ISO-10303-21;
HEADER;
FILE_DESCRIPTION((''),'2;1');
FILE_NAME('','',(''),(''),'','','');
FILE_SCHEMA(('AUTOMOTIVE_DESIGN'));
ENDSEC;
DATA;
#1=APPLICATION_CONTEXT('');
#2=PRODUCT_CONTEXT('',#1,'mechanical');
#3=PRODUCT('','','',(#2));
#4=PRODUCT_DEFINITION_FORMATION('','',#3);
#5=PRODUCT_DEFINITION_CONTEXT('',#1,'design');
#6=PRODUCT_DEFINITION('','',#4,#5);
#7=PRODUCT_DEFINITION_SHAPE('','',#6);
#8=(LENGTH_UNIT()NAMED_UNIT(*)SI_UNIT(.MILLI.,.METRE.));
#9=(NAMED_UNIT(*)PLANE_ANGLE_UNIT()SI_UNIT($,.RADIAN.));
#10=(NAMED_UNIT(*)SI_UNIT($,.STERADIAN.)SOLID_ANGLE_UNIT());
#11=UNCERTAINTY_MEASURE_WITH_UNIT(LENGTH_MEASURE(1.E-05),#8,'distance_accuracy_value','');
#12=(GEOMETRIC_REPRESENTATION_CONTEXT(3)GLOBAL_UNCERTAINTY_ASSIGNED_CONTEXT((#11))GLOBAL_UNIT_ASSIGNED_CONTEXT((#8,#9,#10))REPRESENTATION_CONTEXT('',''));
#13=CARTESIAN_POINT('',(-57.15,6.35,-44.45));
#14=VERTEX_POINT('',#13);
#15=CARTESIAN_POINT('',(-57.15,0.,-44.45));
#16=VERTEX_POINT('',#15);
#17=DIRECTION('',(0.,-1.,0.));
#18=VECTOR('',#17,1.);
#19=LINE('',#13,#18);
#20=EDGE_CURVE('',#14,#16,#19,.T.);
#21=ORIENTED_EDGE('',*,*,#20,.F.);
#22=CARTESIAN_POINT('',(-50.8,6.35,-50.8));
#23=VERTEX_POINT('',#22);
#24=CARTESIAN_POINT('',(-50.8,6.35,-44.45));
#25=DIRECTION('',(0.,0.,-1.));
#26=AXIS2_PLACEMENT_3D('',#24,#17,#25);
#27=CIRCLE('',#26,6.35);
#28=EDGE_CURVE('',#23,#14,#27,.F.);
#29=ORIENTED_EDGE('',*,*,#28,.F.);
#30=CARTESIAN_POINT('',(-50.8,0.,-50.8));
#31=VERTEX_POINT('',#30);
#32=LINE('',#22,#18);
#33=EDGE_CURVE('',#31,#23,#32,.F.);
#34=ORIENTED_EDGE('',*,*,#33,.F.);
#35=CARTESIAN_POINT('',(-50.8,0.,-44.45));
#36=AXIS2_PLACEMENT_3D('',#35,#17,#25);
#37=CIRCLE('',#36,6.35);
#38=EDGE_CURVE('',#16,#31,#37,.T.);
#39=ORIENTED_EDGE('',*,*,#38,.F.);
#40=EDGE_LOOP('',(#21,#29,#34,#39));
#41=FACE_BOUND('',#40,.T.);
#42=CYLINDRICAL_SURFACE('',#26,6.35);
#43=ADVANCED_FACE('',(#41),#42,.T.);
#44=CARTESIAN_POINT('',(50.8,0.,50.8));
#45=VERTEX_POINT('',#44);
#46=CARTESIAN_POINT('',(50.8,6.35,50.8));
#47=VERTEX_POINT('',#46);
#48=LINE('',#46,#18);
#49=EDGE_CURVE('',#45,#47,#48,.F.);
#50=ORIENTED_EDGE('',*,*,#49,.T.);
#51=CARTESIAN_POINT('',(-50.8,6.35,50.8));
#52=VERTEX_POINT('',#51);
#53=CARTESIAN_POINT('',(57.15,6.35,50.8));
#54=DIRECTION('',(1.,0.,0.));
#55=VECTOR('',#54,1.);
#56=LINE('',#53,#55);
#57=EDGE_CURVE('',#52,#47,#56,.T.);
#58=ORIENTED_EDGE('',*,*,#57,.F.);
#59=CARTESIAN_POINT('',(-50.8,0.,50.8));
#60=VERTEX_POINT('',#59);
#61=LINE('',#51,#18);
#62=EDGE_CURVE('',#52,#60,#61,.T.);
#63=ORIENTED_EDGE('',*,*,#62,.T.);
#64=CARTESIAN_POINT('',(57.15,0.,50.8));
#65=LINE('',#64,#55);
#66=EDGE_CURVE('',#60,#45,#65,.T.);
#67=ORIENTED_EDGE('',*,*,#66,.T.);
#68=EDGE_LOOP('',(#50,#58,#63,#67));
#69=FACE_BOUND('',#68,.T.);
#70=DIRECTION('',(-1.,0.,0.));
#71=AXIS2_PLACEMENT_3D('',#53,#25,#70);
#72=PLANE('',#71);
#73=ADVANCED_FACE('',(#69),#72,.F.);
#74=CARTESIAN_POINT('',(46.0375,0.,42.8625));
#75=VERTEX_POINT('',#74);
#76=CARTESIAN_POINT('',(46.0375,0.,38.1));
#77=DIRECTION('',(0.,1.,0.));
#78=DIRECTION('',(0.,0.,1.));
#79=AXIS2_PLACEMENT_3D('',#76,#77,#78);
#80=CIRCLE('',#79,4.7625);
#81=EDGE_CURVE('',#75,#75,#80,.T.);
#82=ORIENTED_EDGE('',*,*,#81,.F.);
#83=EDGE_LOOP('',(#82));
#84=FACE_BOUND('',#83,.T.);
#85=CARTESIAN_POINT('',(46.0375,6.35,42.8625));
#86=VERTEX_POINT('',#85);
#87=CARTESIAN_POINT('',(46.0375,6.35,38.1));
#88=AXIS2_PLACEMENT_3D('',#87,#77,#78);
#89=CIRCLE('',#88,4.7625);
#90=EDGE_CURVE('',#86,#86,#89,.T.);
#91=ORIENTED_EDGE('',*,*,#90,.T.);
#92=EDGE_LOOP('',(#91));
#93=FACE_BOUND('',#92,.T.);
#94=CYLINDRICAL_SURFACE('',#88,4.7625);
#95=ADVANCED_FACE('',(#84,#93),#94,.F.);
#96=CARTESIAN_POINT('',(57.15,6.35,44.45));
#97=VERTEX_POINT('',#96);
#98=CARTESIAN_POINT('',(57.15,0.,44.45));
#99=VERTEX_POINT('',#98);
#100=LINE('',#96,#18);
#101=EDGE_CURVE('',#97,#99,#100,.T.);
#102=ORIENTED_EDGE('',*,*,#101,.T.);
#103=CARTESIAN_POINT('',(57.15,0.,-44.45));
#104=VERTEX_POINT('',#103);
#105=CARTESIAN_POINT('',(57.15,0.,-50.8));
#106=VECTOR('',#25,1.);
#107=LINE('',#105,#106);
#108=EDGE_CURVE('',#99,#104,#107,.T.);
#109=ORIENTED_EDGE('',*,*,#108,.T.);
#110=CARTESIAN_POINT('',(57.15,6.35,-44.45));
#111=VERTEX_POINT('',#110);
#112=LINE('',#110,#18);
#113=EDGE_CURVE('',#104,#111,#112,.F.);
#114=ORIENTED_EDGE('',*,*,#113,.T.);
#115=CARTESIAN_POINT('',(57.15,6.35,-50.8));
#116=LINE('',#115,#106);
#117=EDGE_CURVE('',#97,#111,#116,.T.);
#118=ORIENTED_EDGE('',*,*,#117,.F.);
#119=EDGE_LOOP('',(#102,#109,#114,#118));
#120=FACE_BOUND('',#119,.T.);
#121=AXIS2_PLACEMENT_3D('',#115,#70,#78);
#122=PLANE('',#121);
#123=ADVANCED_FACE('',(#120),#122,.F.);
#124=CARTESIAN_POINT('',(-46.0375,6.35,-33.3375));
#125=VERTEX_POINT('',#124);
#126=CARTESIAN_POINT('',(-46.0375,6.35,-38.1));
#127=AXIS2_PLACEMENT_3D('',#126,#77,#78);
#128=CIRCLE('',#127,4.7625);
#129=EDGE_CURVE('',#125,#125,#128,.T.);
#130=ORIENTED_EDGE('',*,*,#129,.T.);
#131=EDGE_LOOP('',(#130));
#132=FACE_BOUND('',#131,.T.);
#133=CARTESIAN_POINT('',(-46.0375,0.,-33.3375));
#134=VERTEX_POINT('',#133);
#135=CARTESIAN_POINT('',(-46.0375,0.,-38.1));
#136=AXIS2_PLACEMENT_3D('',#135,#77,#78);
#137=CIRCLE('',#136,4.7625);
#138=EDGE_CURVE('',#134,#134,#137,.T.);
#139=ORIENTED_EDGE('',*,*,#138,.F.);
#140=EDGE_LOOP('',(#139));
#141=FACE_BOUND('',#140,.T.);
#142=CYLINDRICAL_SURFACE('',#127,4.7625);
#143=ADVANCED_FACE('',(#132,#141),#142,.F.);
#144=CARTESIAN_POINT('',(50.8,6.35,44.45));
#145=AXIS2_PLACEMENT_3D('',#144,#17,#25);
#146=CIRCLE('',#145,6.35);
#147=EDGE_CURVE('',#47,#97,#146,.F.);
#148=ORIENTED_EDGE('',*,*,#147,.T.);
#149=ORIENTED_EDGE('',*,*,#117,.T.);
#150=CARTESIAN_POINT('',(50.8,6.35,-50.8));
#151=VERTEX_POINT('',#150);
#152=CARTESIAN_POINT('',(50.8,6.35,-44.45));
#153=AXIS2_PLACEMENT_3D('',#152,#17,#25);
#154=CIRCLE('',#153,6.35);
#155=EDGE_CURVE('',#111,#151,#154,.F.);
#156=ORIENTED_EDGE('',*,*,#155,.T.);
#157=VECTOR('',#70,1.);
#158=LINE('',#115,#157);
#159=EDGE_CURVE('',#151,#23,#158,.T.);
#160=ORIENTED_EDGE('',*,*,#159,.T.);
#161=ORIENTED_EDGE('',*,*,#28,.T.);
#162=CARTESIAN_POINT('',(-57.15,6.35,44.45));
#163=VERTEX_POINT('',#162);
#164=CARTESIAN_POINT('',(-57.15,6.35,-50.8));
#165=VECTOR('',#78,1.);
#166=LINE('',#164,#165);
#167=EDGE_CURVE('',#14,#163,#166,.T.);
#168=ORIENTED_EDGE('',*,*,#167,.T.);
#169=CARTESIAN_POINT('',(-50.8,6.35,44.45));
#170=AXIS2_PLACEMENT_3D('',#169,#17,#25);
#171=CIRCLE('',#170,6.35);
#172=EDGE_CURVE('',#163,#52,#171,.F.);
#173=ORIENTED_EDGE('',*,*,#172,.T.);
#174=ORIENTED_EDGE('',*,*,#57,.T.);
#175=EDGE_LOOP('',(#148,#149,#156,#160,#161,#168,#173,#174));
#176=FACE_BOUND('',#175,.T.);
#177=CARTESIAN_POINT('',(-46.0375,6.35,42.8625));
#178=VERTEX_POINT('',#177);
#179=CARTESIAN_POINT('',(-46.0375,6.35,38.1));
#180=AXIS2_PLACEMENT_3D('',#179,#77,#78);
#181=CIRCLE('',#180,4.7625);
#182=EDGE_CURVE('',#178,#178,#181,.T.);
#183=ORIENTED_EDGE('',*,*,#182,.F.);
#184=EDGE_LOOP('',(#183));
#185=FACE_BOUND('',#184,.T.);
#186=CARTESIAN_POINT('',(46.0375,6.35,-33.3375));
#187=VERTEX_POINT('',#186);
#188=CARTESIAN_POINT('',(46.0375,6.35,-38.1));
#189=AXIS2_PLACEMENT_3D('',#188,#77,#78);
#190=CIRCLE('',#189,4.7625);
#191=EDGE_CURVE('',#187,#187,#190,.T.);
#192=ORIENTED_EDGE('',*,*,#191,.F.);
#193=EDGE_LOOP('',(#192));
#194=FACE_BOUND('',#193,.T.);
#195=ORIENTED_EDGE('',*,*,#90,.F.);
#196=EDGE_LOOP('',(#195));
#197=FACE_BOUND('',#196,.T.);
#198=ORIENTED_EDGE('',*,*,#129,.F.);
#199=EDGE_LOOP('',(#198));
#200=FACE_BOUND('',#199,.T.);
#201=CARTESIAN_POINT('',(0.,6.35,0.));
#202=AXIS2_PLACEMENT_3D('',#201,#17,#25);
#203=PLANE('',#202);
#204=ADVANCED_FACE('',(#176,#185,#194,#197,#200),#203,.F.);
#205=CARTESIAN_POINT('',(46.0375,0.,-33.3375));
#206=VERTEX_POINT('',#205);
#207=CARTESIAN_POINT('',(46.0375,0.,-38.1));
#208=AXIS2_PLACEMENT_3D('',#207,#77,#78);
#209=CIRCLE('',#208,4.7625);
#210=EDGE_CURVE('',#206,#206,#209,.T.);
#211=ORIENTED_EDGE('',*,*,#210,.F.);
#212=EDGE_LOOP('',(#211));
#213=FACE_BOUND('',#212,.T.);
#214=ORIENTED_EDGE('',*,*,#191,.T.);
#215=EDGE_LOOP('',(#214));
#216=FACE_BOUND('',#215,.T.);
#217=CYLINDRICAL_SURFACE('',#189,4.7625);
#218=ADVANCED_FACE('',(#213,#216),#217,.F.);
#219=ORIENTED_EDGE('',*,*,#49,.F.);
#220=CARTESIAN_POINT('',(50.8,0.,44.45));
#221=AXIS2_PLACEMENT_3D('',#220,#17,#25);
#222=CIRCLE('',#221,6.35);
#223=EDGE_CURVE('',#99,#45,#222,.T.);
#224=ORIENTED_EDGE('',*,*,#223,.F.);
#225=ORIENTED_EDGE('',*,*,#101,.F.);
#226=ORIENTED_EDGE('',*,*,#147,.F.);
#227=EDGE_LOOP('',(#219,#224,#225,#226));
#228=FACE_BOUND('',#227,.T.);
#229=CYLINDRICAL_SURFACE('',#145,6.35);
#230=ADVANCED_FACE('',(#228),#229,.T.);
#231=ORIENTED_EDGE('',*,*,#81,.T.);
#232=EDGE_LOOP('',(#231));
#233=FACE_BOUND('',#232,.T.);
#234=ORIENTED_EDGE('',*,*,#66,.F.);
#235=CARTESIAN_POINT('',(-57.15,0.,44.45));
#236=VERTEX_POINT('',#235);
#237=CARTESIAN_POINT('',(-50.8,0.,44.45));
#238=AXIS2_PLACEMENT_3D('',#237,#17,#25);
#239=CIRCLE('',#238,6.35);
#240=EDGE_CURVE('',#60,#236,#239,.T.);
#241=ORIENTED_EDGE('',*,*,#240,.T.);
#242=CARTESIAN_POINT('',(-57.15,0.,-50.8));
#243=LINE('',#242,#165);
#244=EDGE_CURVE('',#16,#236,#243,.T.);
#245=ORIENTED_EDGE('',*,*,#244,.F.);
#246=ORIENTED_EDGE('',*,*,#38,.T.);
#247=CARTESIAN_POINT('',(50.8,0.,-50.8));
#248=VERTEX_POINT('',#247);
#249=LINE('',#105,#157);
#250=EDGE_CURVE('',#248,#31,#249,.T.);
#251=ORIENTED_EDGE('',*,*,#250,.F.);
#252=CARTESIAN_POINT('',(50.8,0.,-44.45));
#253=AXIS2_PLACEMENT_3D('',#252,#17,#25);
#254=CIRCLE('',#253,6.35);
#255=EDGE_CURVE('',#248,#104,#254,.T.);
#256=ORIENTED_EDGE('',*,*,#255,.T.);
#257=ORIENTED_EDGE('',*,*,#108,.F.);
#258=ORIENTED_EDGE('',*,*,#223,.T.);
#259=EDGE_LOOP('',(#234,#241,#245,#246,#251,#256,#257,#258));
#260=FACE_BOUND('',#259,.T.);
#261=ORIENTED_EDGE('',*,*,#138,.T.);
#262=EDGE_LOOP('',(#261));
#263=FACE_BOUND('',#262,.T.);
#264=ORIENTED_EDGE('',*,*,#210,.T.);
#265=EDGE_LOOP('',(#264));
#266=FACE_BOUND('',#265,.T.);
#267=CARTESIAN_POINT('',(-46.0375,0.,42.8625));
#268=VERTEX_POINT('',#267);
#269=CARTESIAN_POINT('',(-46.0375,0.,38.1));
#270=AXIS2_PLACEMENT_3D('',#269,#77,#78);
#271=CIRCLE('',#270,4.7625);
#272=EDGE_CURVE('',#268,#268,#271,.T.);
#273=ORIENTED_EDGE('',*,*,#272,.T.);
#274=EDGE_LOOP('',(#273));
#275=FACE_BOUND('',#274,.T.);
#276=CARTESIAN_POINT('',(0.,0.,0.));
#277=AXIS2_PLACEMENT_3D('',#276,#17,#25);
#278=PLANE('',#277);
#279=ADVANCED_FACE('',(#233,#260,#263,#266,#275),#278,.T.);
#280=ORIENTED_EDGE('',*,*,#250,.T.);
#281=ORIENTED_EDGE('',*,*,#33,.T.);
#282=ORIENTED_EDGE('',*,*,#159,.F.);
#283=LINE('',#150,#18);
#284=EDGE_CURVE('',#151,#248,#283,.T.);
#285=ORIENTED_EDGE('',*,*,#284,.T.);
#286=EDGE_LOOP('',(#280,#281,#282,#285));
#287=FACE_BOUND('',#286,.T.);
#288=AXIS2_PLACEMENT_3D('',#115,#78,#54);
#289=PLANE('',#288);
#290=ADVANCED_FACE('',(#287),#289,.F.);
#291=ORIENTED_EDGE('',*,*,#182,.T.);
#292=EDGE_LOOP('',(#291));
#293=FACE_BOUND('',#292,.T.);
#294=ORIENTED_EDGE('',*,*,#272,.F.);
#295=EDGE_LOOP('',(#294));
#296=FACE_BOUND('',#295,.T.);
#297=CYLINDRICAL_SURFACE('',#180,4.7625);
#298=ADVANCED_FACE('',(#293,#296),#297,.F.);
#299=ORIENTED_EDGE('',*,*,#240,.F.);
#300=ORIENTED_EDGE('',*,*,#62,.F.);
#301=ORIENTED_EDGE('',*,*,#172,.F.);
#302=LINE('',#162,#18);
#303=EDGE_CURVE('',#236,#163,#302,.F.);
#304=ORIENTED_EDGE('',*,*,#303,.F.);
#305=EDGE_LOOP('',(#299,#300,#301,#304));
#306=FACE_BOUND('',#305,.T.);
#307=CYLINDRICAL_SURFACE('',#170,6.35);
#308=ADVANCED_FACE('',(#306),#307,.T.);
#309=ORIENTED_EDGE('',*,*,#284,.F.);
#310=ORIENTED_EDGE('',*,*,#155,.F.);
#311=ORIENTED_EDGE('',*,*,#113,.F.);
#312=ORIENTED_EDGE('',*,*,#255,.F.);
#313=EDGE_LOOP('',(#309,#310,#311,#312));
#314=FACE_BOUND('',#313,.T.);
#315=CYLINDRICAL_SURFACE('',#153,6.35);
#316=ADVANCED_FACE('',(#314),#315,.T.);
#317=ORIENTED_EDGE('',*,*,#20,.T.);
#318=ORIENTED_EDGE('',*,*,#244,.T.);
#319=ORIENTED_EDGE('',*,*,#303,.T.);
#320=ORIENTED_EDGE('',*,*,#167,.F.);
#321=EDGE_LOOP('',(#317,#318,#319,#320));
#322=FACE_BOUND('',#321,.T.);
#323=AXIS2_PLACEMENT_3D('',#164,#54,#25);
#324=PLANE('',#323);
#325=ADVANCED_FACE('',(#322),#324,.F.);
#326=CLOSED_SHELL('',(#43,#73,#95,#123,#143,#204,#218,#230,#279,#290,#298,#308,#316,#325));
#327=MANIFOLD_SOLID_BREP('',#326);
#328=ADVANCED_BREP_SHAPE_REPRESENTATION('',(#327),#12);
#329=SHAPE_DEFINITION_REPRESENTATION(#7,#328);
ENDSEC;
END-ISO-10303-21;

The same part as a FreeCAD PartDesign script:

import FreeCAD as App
import Part
import Sketcher

V = App.Vector
Q = App.Units.Quantity


def edges_at(feature, points):
    """Names of the edges that pass closest to the given points."""
    edges = feature.Shape.Edges
    near = lambda p: min(range(len(edges)), key=lambda i: edges[i].distToShape(Part.Vertex(*p))[0])
    return sorted({f"Edge{near(p) + 1}" for p in points})


def add_polygon(sketch, points):
    """Adds a closed chain of lines whose ends are joined by coincident constraints."""
    first, n = sketch.GeometryCount, len(points)
    for a, b in zip(points, points[1:] + points[:1]):
        sketch.addGeometry(Part.LineSegment(App.Vector(*a, 0), App.Vector(*b, 0)), False)
    for i in range(n):
        sketch.addConstraint(Sketcher.Constraint("Coincident", first + i, 2, first + (i + 1) % n, 1))

doc = App.newDocument("Part")
params = doc.addObject("Spreadsheet::Sheet", "Params")
for row, (alias, value) in enumerate([
    ("sketch1_height", "4 in"),
    ("sketch1_width", "4.5 in"),
    ("pad1_length", "0.25 in"),
    ("fillet_radius", "0.25 in"),
    ("sketch2_diameter", "0.375 in"),
    ("hole_diameter", "0.375 in"),
], start=1):
    params.set(f"A{row}", alias)
    params.set(f"B{row}", "=" + value)
    params.setAlias(f"B{row}", alias)

body = doc.addObject("PartDesign::Body", "Body")

sketch1 = doc.addObject("Sketcher::SketchObject", "Sketch")
body.addObject(sketch1)
sketch1.AttachmentSupport = (doc.XZ_Plane, [""])
sketch1.MapMode = "FlatFace"
add_polygon(sketch1, [(-57.15, -50.8), (-57.15, 50.8), (57.15, 50.8), (57.15, -50.8)])
sketch1.addConstraint(Sketcher.Constraint("Vertical", 0))
sketch1.addConstraint(Sketcher.Constraint("Horizontal", 1))
sketch1.addConstraint(Sketcher.Constraint("Vertical", 2))
sketch1.addConstraint(Sketcher.Constraint("Horizontal", 3))
sketch1.addConstraint(Sketcher.Constraint("Symmetric", 0, 2, 2, 2, -1, 1))
sketch1.addConstraint(Sketcher.Constraint("DistanceY", 0, 1, 0, 2, Q("4 in")))
sketch1.addConstraint(Sketcher.Constraint("DistanceX", 1, 1, 1, 2, Q("4.5 in")))
sketch1.setExpression("Constraints[9]", "Params.sketch1_height")
sketch1.setExpression("Constraints[10]", "Params.sketch1_width")
pad1 = doc.addObject("PartDesign::Pad", "Pad")
body.addObject(pad1)
pad1.Profile = sketch1
pad1.setExpression("Length", "Params.pad1_length")
pad1.Reversed = True
doc.recompute()

fillet = doc.addObject("PartDesign::Fillet", "Fillet")
body.addObject(fillet)
fillet.Base = (pad1, edges_at(pad1, [
    (-57.15, 3.175, -50.8),
    (57.15, 3.175, -50.8),
    (57.15, 3.175, 50.8),
    (-57.15, 3.175, 50.8),
]))
fillet.setExpression("Radius", "Params.fillet_radius")

sketch2 = doc.addObject("Sketcher::SketchObject", "Sketch001")
body.addObject(sketch2)
sketch2.AttachmentSupport = (doc.XZ_Plane, [""])
sketch2.MapMode = "FlatFace"
sketch2.AttachmentOffset = App.Placement(V(0, 0, -0.25 * 25.4), App.Rotation())
sketch2.addGeometry(Part.Circle(V(46.0375, 38.1, 0), V(0, 0, 1), 4.7625), False)
sketch2.addGeometry(Part.Circle(V(-46.0375, 38.1, 0), V(0, 0, 1), 4.7625), False)
sketch2.addGeometry(Part.Circle(V(-46.0375, -38.1, 0), V(0, 0, 1), 4.7625), False)
sketch2.addGeometry(Part.Circle(V(46.0375, -38.1, 0), V(0, 0, 1), 4.7625), False)
sketch2.addConstraint(Sketcher.Constraint("Equal", 0, 1))
sketch2.addConstraint(Sketcher.Constraint("Equal", 1, 2))
sketch2.addConstraint(Sketcher.Constraint("Equal", 2, 3))
sketch2.addConstraint(Sketcher.Constraint("Symmetric", 0, 3, 2, 3, -1, 1))
sketch2.addConstraint(Sketcher.Constraint("Symmetric", 1, 3, 3, 3, -1, 1))
sketch2.addConstraint(Sketcher.Constraint("Symmetric", 0, 3, 1, 3, -2))
sketch2.addConstraint(Sketcher.Constraint("Diameter", 0, Q("0.375 in")))
sketch2.addConstraint(Sketcher.Constraint("DistanceY", 2, 3, 1, 3, Q("3 in")))
sketch2.addConstraint(Sketcher.Constraint("DistanceX", -1, 1, 0, 3, Q("1.8125 in")))
sketch2.setExpression("Constraints[6]", "Params.sketch2_diameter")
doc.recompute()
hole = doc.addObject("PartDesign::Hole", "Hole")
body.addObject(hole)
hole.Profile = sketch2
hole.ThreadType = "None"
hole.setExpression("Diameter", "Params.hole_diameter")
hole.DepthType = "ThroughAll"
hole.Reversed = True

doc.recompute()
